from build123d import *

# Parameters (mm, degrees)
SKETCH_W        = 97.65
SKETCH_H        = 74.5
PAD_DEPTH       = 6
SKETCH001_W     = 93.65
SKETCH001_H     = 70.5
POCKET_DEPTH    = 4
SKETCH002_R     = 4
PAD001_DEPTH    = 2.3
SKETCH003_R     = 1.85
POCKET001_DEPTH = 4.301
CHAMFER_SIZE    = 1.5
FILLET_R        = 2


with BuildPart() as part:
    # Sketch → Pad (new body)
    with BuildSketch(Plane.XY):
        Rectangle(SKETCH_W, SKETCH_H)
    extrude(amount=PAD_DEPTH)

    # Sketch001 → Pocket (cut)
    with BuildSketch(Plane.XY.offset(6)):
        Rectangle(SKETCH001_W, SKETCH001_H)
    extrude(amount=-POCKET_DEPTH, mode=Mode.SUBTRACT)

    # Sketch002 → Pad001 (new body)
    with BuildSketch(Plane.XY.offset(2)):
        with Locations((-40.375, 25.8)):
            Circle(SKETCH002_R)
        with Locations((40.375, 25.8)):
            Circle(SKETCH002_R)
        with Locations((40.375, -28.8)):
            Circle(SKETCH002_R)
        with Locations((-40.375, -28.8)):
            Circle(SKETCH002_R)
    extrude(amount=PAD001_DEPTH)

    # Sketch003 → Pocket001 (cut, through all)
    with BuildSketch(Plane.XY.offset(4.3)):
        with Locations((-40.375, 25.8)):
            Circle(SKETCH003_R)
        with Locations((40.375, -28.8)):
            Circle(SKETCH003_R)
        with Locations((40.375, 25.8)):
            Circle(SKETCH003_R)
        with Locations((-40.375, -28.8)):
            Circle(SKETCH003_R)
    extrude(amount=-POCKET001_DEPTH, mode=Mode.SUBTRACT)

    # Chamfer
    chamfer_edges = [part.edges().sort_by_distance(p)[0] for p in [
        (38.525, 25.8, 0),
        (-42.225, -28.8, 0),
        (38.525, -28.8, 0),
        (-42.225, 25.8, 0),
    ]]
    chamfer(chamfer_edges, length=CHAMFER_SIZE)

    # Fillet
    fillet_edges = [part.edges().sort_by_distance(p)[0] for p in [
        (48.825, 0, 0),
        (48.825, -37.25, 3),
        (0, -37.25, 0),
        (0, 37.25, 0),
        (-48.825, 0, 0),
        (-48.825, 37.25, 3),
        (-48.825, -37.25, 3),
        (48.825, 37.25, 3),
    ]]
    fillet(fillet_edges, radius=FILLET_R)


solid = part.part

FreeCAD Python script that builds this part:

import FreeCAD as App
import Part
import Sketcher
Q = App.Units.Quantity


def edges_at(feature, points):
    """Names of the edges that pass closest to the given points."""
    edges = feature.Shape.Edges
    near = lambda p: min(range(len(edges)), key=lambda i: edges[i].distToShape(Part.Vertex(*p))[0])
    return sorted({f"Edge{near(p) + 1}" for p in points})


def add_polygon(sketch, points):
    """Adds a closed chain of lines whose ends are joined by coincident constraints."""
    first, n = sketch.GeometryCount, len(points)
    for a, b in zip(points, points[1:] + points[:1]):
        sketch.addGeometry(Part.LineSegment(App.Vector(*a, 0), App.Vector(*b, 0)), False)
    for i in range(n):
        sketch.addConstraint(Sketcher.Constraint("Coincident", first + i, 2, first + (i + 1) % n, 1))

doc = App.newDocument("Part")
body = doc.addObject("PartDesign::Body", "Body")

sketch1 = body.newObject("Sketcher::SketchObject", "Sketch")
sketch1.AttachmentSupport = (doc.getObject("XY_Plane"), [""])
sketch1.MapMode = "FlatFace"
add_polygon(sketch1, [(-49, 37), (-49, -37), (49, -37), (49, 37)])
sketch1.addConstraint([
    Sketcher.Constraint("Vertical", 0),
    Sketcher.Constraint("Horizontal", 1),
    Sketcher.Constraint("Vertical", 2),
    Sketcher.Constraint("Horizontal", 3),
    Sketcher.Constraint("Symmetric", 0, 2, 2, 2, -1, 1),
    Sketcher.Constraint("DistanceY", 0, 2, 0, 1, Q("74.5 mm")),
    Sketcher.Constraint("DistanceX", 1, 1, 1, 2, Q("97.65 mm")),
])
pad1 = body.newObject("PartDesign::Pad", "Pad")
pad1.Profile = sketch1
pad1.Length = 6

sketch2 = body.newObject("Sketcher::SketchObject", "Sketch001")
sketch2.AttachmentSupport = (doc.getObject("XY_Plane"), [""])
sketch2.MapMode = "FlatFace"
sketch2.AttachmentOffset = App.Placement(App.Vector(0, 0, 6), App.Rotation())
add_polygon(sketch2, [(-47, 35), (-47, -35), (47, -35), (47, 35)])
sketch2.addConstraint([
    Sketcher.Constraint("Vertical", 0),
    Sketcher.Constraint("Horizontal", 1),
    Sketcher.Constraint("Vertical", 2),
    Sketcher.Constraint("Horizontal", 3),
    Sketcher.Constraint("Symmetric", 0, 2, 2, 2, -1, 1),
    Sketcher.Constraint("DistanceY", 0, 2, 0, 1, Q("70.5 mm")),
    Sketcher.Constraint("DistanceX", 1, 1, 1, 2, Q("93.65 mm")),
])
pocket1 = body.newObject("PartDesign::Pocket", "Pocket")
pocket1.Profile = sketch2
pocket1.Length = 4

sketch3 = body.newObject("Sketcher::SketchObject", "Sketch002")
sketch3.AttachmentSupport = (doc.getObject("XY_Plane"), [""])
sketch3.MapMode = "FlatFace"
sketch3.AttachmentOffset = App.Placement(App.Vector(0, 0, 2), App.Rotation())
sketch3.addGeometry([
    Part.Circle(App.Vector(-40.4, 25.8, 0), App.Vector(0, 0, 1), 4),
    Part.Circle(App.Vector(40.4, 25.8, 0), App.Vector(0, 0, 1), 4),
    Part.Circle(App.Vector(40.4, -28.8, 0), App.Vector(0, 0, 1), 4),
    Part.Circle(App.Vector(-40.4, -28.8, 0), App.Vector(0, 0, 1), 4),
], False)
sketch3.addConstraint([
    Sketcher.Constraint("Equal", 0, 1),
    Sketcher.Constraint("Equal", 1, 2),
    Sketcher.Constraint("Equal", 2, 3),
    Sketcher.Constraint("Symmetric", 0, 3, 1, 3, -2),
    Sketcher.Constraint("Symmetric", 2, 3, 3, 3, -2),
    Sketcher.Constraint("Vertical", 1, 3, 2, 3),
    Sketcher.Constraint("Diameter", 0, Q("8 mm")),
    Sketcher.Constraint("DistanceY", -1, 1, 0, 3, Q("25.8 mm")),
    Sketcher.Constraint("DistanceY", 2, 3, -1, 1, Q("28.8 mm")),
    Sketcher.Constraint("DistanceX", 0, 3, 1, 3, Q("80.75 mm")),
])
pad2 = body.newObject("PartDesign::Pad", "Pad001")
pad2.Profile = sketch3
pad2.Length = 2.3

sketch4 = body.newObject("Sketcher::SketchObject", "Sketch003")
sketch4.AttachmentSupport = (doc.getObject("XY_Plane"), [""])
sketch4.MapMode = "FlatFace"
sketch4.AttachmentOffset = App.Placement(App.Vector(0, 0, 4.3), App.Rotation())
sketch4.addGeometry([
    Part.Circle(App.Vector(-40.4, 25.8, 0), App.Vector(0, 0, 1), 1.9),
    Part.Circle(App.Vector(40.4, -28.8, 0), App.Vector(0, 0, 1), 1.9),
    Part.Circle(App.Vector(40.4, 25.8, 0), App.Vector(0, 0, 1), 1.9),
    Part.Circle(App.Vector(-40.4, -28.8, 0), App.Vector(0, 0, 1), 1.9),
], False)
sketch4.addConstraint([
    Sketcher.Constraint("Equal", 0, 1),
    Sketcher.Constraint("Equal", 1, 2),
    Sketcher.Constraint("Equal", 2, 3),
    Sketcher.Constraint("Symmetric", 0, 3, 2, 3, -2),
    Sketcher.Constraint("Symmetric", 1, 3, 3, 3, -2),
    Sketcher.Constraint("Vertical", 1, 3, 2, 3),
    Sketcher.Constraint("Diameter", 0, Q("3.7 mm")),
    Sketcher.Constraint("DistanceY", -1, 1, 0, 3, Q("25.8 mm")),
    Sketcher.Constraint("DistanceY", 1, 3, -1, 1, Q("28.8 mm")),
    Sketcher.Constraint("DistanceX", 0, 3, 1, 3, Q("80.75 mm")),
])
pocket2 = body.newObject("PartDesign::Pocket", "Pocket001")
pocket2.Profile = sketch4
pocket2.Type = "ThroughAll"
doc.recompute()

chamfer = body.newObject("PartDesign::Chamfer", "Chamfer")
chamfer.Base = (pocket2, edges_at(pocket2, [
    (38.525, 25.8, 0),
    (-42.225, -28.8, 0),
    (38.525, -28.8, 0),
    (-42.225, 25.8, 0),
]))
chamfer.Size = 1.5
doc.recompute()

fillet = body.newObject("PartDesign::Fillet", "Fillet")
fillet.Base = (chamfer, edges_at(chamfer, [
    (48.825, 0, 0),
    (48.825, -37.25, 3),
    (0, -37.25, 0),
    (0, 37.25, 0),
    (-48.825, 0, 0),
    (-48.825, 37.25, 3),
    (-48.825, -37.25, 3),
    (48.825, 37.25, 3),
]))
fillet.Radius = 2

doc.recompute()
